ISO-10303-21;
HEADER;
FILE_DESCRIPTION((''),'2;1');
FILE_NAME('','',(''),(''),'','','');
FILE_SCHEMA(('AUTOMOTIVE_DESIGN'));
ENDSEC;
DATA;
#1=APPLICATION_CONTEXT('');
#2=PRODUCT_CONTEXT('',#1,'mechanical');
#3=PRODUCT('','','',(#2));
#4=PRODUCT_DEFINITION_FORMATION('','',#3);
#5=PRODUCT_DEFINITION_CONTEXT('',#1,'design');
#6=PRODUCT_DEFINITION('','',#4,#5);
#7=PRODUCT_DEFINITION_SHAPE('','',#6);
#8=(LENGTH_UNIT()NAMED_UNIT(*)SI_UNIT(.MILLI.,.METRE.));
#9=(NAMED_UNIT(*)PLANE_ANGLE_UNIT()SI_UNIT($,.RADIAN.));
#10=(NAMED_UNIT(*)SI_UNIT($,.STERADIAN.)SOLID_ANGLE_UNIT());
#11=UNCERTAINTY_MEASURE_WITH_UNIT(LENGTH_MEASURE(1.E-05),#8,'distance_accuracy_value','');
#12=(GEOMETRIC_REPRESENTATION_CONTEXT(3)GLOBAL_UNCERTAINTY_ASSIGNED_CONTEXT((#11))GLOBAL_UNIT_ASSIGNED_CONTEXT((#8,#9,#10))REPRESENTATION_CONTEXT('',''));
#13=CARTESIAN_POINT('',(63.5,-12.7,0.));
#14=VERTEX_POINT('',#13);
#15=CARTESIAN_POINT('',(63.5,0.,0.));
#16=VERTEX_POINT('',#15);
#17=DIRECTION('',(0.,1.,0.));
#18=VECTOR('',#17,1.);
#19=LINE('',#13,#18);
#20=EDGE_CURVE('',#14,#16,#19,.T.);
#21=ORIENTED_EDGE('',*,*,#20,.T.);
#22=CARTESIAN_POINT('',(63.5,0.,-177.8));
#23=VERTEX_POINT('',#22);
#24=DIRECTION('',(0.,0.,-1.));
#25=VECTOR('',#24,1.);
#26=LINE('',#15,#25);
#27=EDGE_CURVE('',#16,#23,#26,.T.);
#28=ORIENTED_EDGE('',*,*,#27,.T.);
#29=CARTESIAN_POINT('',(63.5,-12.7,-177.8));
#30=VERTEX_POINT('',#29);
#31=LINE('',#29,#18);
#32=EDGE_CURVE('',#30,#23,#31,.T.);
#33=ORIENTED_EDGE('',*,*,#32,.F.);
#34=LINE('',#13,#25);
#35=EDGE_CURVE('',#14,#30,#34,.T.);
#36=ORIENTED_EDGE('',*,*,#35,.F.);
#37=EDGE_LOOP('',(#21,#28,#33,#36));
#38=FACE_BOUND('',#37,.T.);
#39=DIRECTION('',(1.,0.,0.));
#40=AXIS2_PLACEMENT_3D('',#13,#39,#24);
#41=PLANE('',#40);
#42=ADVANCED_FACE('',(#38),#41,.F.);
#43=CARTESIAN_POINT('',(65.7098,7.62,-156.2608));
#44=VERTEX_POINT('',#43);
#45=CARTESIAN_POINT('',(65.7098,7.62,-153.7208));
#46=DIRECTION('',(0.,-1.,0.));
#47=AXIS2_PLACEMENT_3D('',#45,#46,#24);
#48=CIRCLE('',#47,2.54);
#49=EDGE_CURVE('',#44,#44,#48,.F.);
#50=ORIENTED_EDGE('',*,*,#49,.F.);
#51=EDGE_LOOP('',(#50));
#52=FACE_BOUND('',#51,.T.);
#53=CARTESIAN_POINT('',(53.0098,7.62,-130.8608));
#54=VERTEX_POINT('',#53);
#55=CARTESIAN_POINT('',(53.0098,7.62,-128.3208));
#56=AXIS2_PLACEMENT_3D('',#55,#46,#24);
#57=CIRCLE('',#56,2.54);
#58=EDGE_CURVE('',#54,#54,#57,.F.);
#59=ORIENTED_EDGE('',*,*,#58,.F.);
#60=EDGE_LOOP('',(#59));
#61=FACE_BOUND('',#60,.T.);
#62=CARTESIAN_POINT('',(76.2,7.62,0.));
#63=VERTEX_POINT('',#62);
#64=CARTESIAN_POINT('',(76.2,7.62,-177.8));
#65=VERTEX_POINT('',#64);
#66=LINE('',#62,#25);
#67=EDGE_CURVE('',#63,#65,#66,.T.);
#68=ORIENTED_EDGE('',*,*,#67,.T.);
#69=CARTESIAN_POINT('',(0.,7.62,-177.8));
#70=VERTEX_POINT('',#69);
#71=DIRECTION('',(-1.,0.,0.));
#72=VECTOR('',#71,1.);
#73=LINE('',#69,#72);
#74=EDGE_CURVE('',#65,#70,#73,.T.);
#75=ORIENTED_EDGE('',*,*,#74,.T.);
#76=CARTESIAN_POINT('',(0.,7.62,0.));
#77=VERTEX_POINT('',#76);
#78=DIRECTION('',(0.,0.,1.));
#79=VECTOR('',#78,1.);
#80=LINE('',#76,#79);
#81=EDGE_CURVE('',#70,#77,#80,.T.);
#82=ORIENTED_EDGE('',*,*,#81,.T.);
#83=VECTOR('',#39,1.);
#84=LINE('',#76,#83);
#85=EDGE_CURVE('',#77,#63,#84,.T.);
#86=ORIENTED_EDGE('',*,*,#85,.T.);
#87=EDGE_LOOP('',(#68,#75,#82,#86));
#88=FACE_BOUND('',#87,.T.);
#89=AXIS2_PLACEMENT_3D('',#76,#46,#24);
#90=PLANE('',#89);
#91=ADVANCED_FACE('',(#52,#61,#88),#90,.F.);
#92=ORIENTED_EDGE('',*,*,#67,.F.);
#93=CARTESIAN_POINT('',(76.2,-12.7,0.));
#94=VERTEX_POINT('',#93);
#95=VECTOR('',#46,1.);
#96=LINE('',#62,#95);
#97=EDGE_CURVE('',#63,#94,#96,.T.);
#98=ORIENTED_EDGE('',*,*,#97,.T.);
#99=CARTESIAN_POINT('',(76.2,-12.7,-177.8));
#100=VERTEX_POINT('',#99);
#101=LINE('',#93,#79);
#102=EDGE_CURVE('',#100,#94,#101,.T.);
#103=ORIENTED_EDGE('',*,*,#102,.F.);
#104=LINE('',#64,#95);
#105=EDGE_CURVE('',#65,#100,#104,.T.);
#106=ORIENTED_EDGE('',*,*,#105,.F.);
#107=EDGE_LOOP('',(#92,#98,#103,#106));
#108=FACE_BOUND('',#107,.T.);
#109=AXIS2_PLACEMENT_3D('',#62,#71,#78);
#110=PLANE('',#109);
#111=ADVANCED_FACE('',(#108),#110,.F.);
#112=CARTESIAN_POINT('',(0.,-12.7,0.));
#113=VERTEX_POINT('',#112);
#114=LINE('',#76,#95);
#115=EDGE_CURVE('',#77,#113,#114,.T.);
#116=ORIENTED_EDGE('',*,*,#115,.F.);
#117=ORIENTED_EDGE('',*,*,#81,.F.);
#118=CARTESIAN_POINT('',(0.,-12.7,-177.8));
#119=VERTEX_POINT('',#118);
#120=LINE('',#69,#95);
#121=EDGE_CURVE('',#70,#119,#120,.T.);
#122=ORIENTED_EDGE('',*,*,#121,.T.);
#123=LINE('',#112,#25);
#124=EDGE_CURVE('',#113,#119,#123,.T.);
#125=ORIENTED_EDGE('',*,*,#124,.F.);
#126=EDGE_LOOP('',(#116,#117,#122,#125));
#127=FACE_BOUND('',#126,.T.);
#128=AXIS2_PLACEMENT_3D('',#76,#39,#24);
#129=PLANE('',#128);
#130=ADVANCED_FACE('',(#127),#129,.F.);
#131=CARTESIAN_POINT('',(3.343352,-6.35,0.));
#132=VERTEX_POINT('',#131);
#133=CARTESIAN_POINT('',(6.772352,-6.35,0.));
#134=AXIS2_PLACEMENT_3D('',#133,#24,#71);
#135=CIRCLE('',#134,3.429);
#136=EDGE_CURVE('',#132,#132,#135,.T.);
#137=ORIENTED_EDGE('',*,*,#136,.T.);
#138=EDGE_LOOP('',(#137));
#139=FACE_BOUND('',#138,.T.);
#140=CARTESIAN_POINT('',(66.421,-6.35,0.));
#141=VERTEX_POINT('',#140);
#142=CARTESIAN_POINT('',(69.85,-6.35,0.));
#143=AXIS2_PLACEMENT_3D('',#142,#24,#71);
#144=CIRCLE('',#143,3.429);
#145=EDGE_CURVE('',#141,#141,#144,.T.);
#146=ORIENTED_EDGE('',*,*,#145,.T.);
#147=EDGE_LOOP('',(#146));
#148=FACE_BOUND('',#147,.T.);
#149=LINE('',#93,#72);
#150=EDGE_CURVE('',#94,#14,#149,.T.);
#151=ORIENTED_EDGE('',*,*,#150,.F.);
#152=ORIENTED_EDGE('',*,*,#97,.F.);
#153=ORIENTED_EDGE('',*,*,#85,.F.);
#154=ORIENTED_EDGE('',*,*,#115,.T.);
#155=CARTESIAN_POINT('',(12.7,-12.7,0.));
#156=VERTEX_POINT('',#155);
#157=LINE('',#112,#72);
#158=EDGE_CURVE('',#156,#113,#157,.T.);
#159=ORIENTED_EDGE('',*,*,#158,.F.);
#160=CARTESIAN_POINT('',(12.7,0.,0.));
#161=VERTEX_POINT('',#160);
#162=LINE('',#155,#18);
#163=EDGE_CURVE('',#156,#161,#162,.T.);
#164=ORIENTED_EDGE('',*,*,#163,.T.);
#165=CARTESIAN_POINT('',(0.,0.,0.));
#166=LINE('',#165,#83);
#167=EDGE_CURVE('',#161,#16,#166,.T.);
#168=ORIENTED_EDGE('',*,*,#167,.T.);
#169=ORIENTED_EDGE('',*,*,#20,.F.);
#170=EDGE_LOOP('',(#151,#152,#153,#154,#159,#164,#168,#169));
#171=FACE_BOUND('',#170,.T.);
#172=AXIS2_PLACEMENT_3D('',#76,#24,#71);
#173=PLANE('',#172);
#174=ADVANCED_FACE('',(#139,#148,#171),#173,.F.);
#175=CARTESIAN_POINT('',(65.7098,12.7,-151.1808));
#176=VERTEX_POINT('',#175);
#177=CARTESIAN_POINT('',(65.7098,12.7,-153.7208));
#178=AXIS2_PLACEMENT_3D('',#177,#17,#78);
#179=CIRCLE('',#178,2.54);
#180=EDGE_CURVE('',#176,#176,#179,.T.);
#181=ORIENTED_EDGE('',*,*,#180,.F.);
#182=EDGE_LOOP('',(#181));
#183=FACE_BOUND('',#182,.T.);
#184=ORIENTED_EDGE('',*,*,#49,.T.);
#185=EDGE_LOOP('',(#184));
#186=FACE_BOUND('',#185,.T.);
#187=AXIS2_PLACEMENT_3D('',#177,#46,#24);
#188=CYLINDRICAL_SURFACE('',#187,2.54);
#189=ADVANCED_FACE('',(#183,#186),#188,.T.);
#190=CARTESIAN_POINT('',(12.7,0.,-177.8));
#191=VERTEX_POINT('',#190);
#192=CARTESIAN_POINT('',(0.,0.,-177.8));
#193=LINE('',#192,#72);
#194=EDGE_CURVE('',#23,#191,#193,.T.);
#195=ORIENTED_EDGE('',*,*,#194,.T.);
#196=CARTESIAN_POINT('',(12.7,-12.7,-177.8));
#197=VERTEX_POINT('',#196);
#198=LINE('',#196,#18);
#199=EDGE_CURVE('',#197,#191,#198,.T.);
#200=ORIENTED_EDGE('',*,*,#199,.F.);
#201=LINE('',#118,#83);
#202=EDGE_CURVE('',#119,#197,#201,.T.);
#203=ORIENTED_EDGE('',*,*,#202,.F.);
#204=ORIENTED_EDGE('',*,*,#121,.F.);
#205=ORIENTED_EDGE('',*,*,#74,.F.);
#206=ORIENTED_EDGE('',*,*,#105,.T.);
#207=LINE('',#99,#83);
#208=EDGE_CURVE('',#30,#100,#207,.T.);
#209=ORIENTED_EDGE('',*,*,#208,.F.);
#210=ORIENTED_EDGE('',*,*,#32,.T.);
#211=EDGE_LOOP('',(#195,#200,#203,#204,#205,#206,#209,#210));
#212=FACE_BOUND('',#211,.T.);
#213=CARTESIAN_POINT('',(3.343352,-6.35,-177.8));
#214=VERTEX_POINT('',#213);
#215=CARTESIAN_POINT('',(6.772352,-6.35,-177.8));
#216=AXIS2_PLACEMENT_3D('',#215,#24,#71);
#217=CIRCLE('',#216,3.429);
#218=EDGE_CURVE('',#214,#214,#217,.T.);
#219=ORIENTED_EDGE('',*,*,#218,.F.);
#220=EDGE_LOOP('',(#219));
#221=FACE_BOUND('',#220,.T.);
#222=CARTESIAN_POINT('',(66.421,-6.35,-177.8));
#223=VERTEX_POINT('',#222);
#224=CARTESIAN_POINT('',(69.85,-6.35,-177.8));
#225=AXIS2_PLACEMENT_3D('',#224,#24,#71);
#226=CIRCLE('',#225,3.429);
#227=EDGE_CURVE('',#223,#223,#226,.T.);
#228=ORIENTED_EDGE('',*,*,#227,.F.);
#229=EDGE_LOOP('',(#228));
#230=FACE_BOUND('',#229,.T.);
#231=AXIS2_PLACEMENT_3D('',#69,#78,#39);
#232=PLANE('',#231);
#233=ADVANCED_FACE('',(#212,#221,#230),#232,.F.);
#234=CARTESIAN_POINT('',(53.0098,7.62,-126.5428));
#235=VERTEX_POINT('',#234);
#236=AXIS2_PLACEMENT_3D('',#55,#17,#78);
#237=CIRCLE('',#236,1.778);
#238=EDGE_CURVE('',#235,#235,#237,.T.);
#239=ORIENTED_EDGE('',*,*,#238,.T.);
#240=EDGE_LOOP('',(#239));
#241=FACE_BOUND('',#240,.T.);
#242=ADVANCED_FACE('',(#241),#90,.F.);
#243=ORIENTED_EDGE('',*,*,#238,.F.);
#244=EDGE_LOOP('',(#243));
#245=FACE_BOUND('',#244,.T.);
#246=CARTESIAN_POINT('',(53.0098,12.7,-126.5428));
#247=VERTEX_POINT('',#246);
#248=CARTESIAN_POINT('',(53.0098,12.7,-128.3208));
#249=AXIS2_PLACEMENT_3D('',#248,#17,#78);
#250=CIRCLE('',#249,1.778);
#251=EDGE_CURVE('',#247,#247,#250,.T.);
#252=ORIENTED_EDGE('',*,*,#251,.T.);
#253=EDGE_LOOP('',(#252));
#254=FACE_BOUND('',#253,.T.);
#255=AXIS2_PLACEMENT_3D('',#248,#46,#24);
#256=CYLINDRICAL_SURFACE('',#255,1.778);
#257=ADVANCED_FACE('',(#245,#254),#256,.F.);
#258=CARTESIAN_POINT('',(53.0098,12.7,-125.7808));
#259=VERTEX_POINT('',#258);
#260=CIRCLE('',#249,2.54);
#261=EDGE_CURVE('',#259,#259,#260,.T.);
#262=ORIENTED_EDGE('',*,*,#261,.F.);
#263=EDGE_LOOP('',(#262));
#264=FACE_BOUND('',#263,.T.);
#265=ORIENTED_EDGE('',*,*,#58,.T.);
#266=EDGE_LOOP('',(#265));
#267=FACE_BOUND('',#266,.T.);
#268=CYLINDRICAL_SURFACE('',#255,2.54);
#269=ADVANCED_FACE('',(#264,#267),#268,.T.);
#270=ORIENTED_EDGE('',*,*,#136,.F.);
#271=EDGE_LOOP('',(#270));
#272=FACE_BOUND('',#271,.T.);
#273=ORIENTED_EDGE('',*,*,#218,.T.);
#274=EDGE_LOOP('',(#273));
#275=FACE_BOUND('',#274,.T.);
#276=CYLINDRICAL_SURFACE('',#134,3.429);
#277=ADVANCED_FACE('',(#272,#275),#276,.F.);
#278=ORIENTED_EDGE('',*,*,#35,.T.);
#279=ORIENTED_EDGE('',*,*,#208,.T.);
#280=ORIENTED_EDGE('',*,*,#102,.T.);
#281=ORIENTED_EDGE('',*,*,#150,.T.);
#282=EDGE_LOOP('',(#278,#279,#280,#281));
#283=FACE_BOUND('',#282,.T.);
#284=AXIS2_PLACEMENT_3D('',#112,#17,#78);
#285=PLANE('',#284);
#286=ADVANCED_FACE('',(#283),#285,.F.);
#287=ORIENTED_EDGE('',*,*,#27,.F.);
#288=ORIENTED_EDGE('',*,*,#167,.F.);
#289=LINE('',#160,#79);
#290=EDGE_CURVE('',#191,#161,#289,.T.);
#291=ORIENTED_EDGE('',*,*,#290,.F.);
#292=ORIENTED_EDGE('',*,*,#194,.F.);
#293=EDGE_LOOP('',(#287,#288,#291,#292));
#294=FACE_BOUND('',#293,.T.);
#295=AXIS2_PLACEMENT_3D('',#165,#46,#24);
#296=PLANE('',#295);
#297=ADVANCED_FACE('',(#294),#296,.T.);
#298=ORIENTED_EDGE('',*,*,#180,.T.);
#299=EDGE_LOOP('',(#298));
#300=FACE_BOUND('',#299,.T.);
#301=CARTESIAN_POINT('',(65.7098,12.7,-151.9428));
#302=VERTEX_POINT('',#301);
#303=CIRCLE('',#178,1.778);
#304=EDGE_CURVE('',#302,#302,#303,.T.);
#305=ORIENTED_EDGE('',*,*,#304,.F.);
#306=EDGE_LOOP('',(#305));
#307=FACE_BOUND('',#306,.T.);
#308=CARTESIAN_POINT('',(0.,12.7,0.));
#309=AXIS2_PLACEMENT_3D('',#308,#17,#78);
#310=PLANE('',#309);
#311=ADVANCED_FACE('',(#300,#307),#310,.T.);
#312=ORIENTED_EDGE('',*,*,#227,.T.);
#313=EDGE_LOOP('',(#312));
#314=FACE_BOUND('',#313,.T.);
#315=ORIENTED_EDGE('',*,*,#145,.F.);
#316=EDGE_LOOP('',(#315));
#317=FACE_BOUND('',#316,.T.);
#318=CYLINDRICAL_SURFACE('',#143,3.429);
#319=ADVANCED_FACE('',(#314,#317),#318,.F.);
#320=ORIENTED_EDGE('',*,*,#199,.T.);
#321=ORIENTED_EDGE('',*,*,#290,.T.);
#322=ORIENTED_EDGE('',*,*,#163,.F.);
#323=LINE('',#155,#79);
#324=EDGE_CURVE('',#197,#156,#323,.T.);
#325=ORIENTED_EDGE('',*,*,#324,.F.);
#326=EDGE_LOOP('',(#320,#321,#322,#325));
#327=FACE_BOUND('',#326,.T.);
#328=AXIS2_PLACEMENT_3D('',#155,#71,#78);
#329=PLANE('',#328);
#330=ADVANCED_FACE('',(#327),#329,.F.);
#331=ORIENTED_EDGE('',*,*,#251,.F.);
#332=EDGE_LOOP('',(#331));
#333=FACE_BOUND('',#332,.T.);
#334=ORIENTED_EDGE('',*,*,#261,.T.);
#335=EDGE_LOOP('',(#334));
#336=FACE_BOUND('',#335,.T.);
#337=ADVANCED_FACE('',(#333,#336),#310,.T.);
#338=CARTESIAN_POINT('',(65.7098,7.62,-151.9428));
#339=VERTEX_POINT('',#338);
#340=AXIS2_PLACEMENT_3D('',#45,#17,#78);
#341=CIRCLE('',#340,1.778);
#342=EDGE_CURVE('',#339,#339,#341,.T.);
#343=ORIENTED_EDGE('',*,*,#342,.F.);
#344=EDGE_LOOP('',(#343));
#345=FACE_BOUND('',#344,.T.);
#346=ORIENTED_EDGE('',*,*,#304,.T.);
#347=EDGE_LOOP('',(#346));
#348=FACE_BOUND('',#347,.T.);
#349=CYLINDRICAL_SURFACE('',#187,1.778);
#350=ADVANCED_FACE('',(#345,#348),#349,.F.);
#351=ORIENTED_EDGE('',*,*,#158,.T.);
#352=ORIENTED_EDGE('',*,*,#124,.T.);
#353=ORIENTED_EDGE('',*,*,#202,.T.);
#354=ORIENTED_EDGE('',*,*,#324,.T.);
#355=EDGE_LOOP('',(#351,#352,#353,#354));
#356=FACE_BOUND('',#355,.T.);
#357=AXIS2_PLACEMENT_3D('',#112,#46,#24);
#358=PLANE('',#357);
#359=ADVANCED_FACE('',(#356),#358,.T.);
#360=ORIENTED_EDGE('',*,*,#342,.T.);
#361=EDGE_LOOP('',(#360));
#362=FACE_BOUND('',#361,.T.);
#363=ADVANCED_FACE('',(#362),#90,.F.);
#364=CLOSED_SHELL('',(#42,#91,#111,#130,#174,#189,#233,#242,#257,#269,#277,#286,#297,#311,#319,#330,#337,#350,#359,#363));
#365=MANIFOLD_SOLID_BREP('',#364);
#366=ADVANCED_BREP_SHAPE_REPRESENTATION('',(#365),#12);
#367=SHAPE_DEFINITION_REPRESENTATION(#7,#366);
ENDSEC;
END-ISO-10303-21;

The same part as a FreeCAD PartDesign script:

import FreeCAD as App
import Part
import Sketcher
Q = App.Units.Quantity

doc = App.newDocument("Part")
body = doc.addObject("PartDesign::Body", "Body")

sketch1 = doc.addObject("Sketcher::SketchObject", "Sketch")
body.addObject(sketch1)
sketch1.AttachmentSupport = (doc.XZ_Plane, [""])
sketch1.MapMode = "FlatFace"
sketch1.addGeometry([
    Part.LineSegment(App.Vector(0, -178, 0), App.Vector(0, 0, 0)),
    Part.LineSegment(App.Vector(0, 0, 0), App.Vector(76, 0, 0)),
    Part.LineSegment(App.Vector(76, 0, 0), App.Vector(76, -178, 0)),
    Part.LineSegment(App.Vector(76, -178, 0), App.Vector(0, -178, 0)),
], False)
sketch1.addConstraint([
    Sketcher.Constraint("Coincident", 0, 2, 1, 1),
    Sketcher.Constraint("Coincident", 1, 2, 2, 1),
    Sketcher.Constraint("Coincident", 2, 2, 3, 1),
    Sketcher.Constraint("Coincident", 3, 2, 0, 1),
    Sketcher.Constraint("Vertical", 0),
    Sketcher.Constraint("Horizontal", 1),
    Sketcher.Constraint("Vertical", 2),
    Sketcher.Constraint("Horizontal", 3),
    Sketcher.Constraint("Coincident", 0, 2, -1, 1),
    Sketcher.Constraint("DistanceX", 1, 1, 1, 2, Q("3 in")),
    Sketcher.Constraint("DistanceY", 0, 1, 0, 2, Q("7 in")),
])
pad1 = doc.addObject("PartDesign::Pad", "Pad")
body.addObject(pad1)
pad1.Profile = sketch1
pad1.Length = Q("0.3 in")
pad1.Reversed = True

sketch2 = doc.addObject("Sketcher::SketchObject", "Sketch001")
body.addObject(sketch2)
sketch2.AttachmentSupport = (doc.XZ_Plane, [""])
sketch2.MapMode = "FlatFace"
sketch2.addGeometry([
    Part.LineSegment(App.Vector(0, 0, 0), App.Vector(0, -178, 0)),
    Part.LineSegment(App.Vector(0, -178, 0), App.Vector(13, -178, 0)),
    Part.LineSegment(App.Vector(13, -178, 0), App.Vector(13, 0, 0)),
    Part.LineSegment(App.Vector(13, 0, 0), App.Vector(0, 0, 0)),
    Part.LineSegment(App.Vector(64, 0, 0), App.Vector(64, -178, 0)),
    Part.LineSegment(App.Vector(64, -178, 0), App.Vector(76, -178, 0)),
    Part.LineSegment(App.Vector(76, -178, 0), App.Vector(76, 0, 0)),
    Part.LineSegment(App.Vector(76, 0, 0), App.Vector(64, 0, 0)),
], False)
sketch2.addConstraint([
    Sketcher.Constraint("Coincident", 0, 2, 1, 1),
    Sketcher.Constraint("Coincident", 1, 2, 2, 1),
    Sketcher.Constraint("Coincident", 2, 2, 3, 1),
    Sketcher.Constraint("Coincident", 3, 2, 0, 1),
    Sketcher.Constraint("Coincident", 4, 2, 5, 1),
    Sketcher.Constraint("Coincident", 5, 2, 6, 1),
    Sketcher.Constraint("Coincident", 6, 2, 7, 1),
    Sketcher.Constraint("Coincident", 7, 2, 4, 1),
    Sketcher.Constraint("Vertical", 0),
    Sketcher.Constraint("Horizontal", 1),
    Sketcher.Constraint("Vertical", 2),
    Sketcher.Constraint("Horizontal", 3),
    Sketcher.Constraint("Vertical", 4),
    Sketcher.Constraint("Horizontal", 5),
    Sketcher.Constraint("Vertical", 6),
    Sketcher.Constraint("Horizontal", 7),
    Sketcher.Constraint("Coincident", 3, 2, -1, 1),
    Sketcher.Constraint("PointOnObject", 6, 2, -1),
    Sketcher.Constraint("Horizontal", 1, 2, 4, 2),
    Sketcher.Constraint("Equal", 3, 5),
    Sketcher.Constraint("DistanceY", 0, 2, 0, 1, Q("7 in")),
    Sketcher.Constraint("DistanceX", 1, 1, 1, 2, Q("0.5 in")),
    Sketcher.Constraint("DistanceX", -1, 1, 5, 2, Q("3 in")),
])
pad2 = doc.addObject("PartDesign::Pad", "Pad001")
body.addObject(pad2)
pad2.Profile = sketch2
pad2.Length = Q("0.5 in")

sketch3 = doc.addObject("Sketcher::SketchObject", "Sketch002")
body.addObject(sketch3)
sketch3.AttachmentSupport = (doc.XY_Plane, [""])
sketch3.MapMode = "FlatFace"
sketch3.AttachmentOffset = App.Placement(App.Vector(0, 0, -7 * 25.4), App.Rotation())
sketch3.addGeometry([
    Part.Circle(App.Vector(69.8, -6.3, 0), App.Vector(0, 0, 1), 3.4),
    Part.Circle(App.Vector(6.8, -6.3, 0), App.Vector(0, 0, 1), 3.4),
], False)
sketch3.addConstraint([
    Sketcher.Constraint("Equal", 0, 1),
    Sketcher.Constraint("Horizontal", 0, 3, 1, 3),
    Sketcher.Constraint("Diameter", 0, Q("0.27 in")),
    Sketcher.Constraint("DistanceX", -1, 1, 0, 3, Q("2.75 in")),
    Sketcher.Constraint("DistanceY", 0, 3, -1, 1, Q("0.25 in")),
    Sketcher.Constraint("DistanceX", -1, 1, 1, 3, 6.772352),
])
pocket1 = doc.addObject("PartDesign::Pocket", "Pocket")
body.addObject(pocket1)
pocket1.Profile = sketch3
pocket1.Type = "ThroughAll"
pocket1.Reversed = True

sketch4 = doc.addObject("Sketcher::SketchObject", "Sketch003")
body.addObject(sketch4)
sketch4.AttachmentSupport = (doc.XZ_Plane, [""])
sketch4.MapMode = "FlatFace"
sketch4.AttachmentOffset = App.Placement(App.Vector(0, 0, -0.3 * 25.4), App.Rotation())
sketch4.addGeometry([
    Part.Circle(App.Vector(53, -128.3, 0), App.Vector(0, 0, 1), 2.5),
    Part.Circle(App.Vector(53, -128.3, 0), App.Vector(0, 0, 1), 1.8),
    Part.Circle(App.Vector(65.7, -153.7, 0), App.Vector(0, 0, 1), 2.5),
    Part.Circle(App.Vector(65.7, -153.7, 0), App.Vector(0, 0, 1), 1.8),
], False)
sketch4.addConstraint([
    Sketcher.Constraint("Coincident", 1, 3, 0, 3),
    Sketcher.Constraint("Coincident", 3, 3, 2, 3),
    Sketcher.Constraint("Equal", 0, 2),
    Sketcher.Constraint("Equal", 1, 3),
    Sketcher.Constraint("Diameter", 0, Q("0.2 in")),
    Sketcher.Constraint("Diameter", 1, Q("0.14 in")),
    Sketcher.Constraint("DistanceY", 2, 3, 0, 3, Q("1 in")),
    Sketcher.Constraint("DistanceX", 0, 3, 2, 3, Q("0.5 in")),
    Sketcher.Constraint("DistanceX", -1, 1, 0, 3, Q("2.087 in")),
    Sketcher.Constraint("DistanceY", 0, 3, -1, 1, Q("5.052 in")),
])
pad3 = doc.addObject("PartDesign::Pad", "Pad002")
body.addObject(pad3)
pad3.Profile = sketch4
pad3.Length = Q("0.2 in")
pad3.Reversed = True

doc.recompute()
